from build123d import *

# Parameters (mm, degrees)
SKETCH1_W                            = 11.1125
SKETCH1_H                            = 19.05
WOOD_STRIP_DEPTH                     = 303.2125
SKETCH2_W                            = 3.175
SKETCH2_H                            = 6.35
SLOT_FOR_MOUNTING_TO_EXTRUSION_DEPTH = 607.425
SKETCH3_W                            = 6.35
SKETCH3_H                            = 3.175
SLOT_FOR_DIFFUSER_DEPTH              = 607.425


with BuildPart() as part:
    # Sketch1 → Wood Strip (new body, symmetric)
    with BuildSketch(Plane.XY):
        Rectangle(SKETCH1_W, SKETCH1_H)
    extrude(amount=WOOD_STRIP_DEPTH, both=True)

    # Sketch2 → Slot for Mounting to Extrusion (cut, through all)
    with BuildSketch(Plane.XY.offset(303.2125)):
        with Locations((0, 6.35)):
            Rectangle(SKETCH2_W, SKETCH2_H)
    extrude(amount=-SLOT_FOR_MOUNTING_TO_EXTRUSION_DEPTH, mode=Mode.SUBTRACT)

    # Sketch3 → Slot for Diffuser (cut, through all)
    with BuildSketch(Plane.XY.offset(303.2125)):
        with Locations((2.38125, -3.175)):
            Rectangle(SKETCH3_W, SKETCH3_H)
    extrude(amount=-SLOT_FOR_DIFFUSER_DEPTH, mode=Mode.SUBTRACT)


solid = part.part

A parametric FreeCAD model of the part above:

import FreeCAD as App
import Part
import Sketcher
Q = App.Units.Quantity

doc = App.newDocument("Part")
body = doc.addObject("PartDesign::Body", "Body")

sketch1 = body.newObject("Sketcher::SketchObject", "Sketch")
sketch1.AttachmentSupport = (doc.getObject("XY_Plane"), [""])
sketch1.MapMode = "FlatFace"
sketch1.addGeometry(Part.LineSegment(App.Vector(-6, 10, 0), App.Vector(-6, -10, 0)), False)
sketch1.addGeometry(Part.LineSegment(App.Vector(-6, -10, 0), App.Vector(6, -10, 0)), False)
sketch1.addGeometry(Part.LineSegment(App.Vector(6, -10, 0), App.Vector(6, 10, 0)), False)
sketch1.addGeometry(Part.LineSegment(App.Vector(6, 10, 0), App.Vector(-6, 10, 0)), False)
sketch1.addConstraint(Sketcher.Constraint("Coincident", 0, 2, 1, 1))
sketch1.addConstraint(Sketcher.Constraint("Coincident", 1, 2, 2, 1))
sketch1.addConstraint(Sketcher.Constraint("Coincident", 2, 2, 3, 1))
sketch1.addConstraint(Sketcher.Constraint("Coincident", 3, 2, 0, 1))
sketch1.addConstraint(Sketcher.Constraint("Vertical", 0))
sketch1.addConstraint(Sketcher.Constraint("Horizontal", 1))
sketch1.addConstraint(Sketcher.Constraint("Vertical", 2))
sketch1.addConstraint(Sketcher.Constraint("Horizontal", 3))
sketch1.addConstraint(Sketcher.Constraint("Symmetric", 0, 2, 2, 2, -1, 1))
sketch1.addConstraint(Sketcher.Constraint("DistanceY", 0, 2, 0, 1, Q("0.75 in")))
sketch1.addConstraint(Sketcher.Constraint("DistanceX", 1, 1, 1, 2, Q("0.4375 in")))
pad1 = body.newObject("PartDesign::Pad", "Pad")
pad1.Profile = sketch1
pad1.Length = Q("23.875 in")
pad1.Midplane = True

sketch2 = body.newObject("Sketcher::SketchObject", "Sketch001")
sketch2.AttachmentSupport = (doc.getObject("XY_Plane"), [""])
sketch2.MapMode = "FlatFace"
sketch2.AttachmentOffset = App.Placement(App.Vector(0, 0, 11.9375 * 25.4), App.Rotation())
sketch2.addGeometry(Part.LineSegment(App.Vector(-1.6, 9.5, 0), App.Vector(-1.6, 3.2, 0)), False)
sketch2.addGeometry(Part.LineSegment(App.Vector(-1.6, 3.2, 0), App.Vector(1.6, 3.2, 0)), False)
sketch2.addGeometry(Part.LineSegment(App.Vector(1.6, 3.2, 0), App.Vector(1.6, 9.5, 0)), False)
sketch2.addGeometry(Part.LineSegment(App.Vector(1.6, 9.5, 0), App.Vector(-1.6, 9.5, 0)), False)
sketch2.addConstraint(Sketcher.Constraint("Coincident", 0, 2, 1, 1))
sketch2.addConstraint(Sketcher.Constraint("Coincident", 1, 2, 2, 1))
sketch2.addConstraint(Sketcher.Constraint("Coincident", 2, 2, 3, 1))
sketch2.addConstraint(Sketcher.Constraint("Coincident", 3, 2, 0, 1))
sketch2.addConstraint(Sketcher.Constraint("Vertical", 0))
sketch2.addConstraint(Sketcher.Constraint("Horizontal", 1))
sketch2.addConstraint(Sketcher.Constraint("Vertical", 2))
sketch2.addConstraint(Sketcher.Constraint("Horizontal", 3))
sketch2.addConstraint(Sketcher.Constraint("DistanceY", 0, 2, 0, 1, Q("0.25 in")))
sketch2.addConstraint(Sketcher.Constraint("DistanceX", 1, 1, 1, 2, Q("0.125 in")))
sketch2.addConstraint(Sketcher.Constraint("DistanceX", 0, 2, -1, 1, Q("0.0625 in")))
sketch2.addConstraint(Sketcher.Constraint("DistanceY", -1, 1, 0, 2, Q("0.125 in")))
pocket1 = body.newObject("PartDesign::Pocket", "Pocket")
pocket1.Profile = sketch2
pocket1.Type = "ThroughAll"

sketch3 = body.newObject("Sketcher::SketchObject", "Sketch002")
sketch3.AttachmentSupport = (doc.getObject("XY_Plane"), [""])
sketch3.MapMode = "FlatFace"
sketch3.AttachmentOffset = App.Placement(App.Vector(0, 0, 11.9375 * 25.4), App.Rotation())
sketch3.addGeometry(Part.LineSegment(App.Vector(-0.8, -1.6, 0), App.Vector(-0.8, -4.8, 0)), False)
sketch3.addGeometry(Part.LineSegment(App.Vector(-0.8, -4.8, 0), App.Vector(5.6, -4.8, 0)), False)
sketch3.addGeometry(Part.LineSegment(App.Vector(5.6, -4.8, 0), App.Vector(5.6, -1.6, 0)), False)
sketch3.addGeometry(Part.LineSegment(App.Vector(5.6, -1.6, 0), App.Vector(-0.8, -1.6, 0)), False)
sketch3.addConstraint(Sketcher.Constraint("Coincident", 0, 2, 1, 1))
sketch3.addConstraint(Sketcher.Constraint("Coincident", 1, 2, 2, 1))
sketch3.addConstraint(Sketcher.Constraint("Coincident", 2, 2, 3, 1))
sketch3.addConstraint(Sketcher.Constraint("Coincident", 3, 2, 0, 1))
sketch3.addConstraint(Sketcher.Constraint("Vertical", 0))
sketch3.addConstraint(Sketcher.Constraint("Horizontal", 1))
sketch3.addConstraint(Sketcher.Constraint("Vertical", 2))
sketch3.addConstraint(Sketcher.Constraint("Horizontal", 3))
sketch3.addConstraint(Sketcher.Constraint("DistanceX", 1, 1, 1, 2, Q("0.25 in")))
sketch3.addConstraint(Sketcher.Constraint("DistanceY", 0, 2, 0, 1, Q("0.125 in")))
sketch3.addConstraint(Sketcher.Constraint("DistanceX", 0, 2, -1, 1, Q("0.03125 in")))
sketch3.addConstraint(Sketcher.Constraint("DistanceY", 0, 2, -1, 1, Q("0.1875 in")))
pocket2 = body.newObject("PartDesign::Pocket", "Pocket001")
pocket2.Profile = sketch3
pocket2.Type = "ThroughAll"

doc.recompute()
